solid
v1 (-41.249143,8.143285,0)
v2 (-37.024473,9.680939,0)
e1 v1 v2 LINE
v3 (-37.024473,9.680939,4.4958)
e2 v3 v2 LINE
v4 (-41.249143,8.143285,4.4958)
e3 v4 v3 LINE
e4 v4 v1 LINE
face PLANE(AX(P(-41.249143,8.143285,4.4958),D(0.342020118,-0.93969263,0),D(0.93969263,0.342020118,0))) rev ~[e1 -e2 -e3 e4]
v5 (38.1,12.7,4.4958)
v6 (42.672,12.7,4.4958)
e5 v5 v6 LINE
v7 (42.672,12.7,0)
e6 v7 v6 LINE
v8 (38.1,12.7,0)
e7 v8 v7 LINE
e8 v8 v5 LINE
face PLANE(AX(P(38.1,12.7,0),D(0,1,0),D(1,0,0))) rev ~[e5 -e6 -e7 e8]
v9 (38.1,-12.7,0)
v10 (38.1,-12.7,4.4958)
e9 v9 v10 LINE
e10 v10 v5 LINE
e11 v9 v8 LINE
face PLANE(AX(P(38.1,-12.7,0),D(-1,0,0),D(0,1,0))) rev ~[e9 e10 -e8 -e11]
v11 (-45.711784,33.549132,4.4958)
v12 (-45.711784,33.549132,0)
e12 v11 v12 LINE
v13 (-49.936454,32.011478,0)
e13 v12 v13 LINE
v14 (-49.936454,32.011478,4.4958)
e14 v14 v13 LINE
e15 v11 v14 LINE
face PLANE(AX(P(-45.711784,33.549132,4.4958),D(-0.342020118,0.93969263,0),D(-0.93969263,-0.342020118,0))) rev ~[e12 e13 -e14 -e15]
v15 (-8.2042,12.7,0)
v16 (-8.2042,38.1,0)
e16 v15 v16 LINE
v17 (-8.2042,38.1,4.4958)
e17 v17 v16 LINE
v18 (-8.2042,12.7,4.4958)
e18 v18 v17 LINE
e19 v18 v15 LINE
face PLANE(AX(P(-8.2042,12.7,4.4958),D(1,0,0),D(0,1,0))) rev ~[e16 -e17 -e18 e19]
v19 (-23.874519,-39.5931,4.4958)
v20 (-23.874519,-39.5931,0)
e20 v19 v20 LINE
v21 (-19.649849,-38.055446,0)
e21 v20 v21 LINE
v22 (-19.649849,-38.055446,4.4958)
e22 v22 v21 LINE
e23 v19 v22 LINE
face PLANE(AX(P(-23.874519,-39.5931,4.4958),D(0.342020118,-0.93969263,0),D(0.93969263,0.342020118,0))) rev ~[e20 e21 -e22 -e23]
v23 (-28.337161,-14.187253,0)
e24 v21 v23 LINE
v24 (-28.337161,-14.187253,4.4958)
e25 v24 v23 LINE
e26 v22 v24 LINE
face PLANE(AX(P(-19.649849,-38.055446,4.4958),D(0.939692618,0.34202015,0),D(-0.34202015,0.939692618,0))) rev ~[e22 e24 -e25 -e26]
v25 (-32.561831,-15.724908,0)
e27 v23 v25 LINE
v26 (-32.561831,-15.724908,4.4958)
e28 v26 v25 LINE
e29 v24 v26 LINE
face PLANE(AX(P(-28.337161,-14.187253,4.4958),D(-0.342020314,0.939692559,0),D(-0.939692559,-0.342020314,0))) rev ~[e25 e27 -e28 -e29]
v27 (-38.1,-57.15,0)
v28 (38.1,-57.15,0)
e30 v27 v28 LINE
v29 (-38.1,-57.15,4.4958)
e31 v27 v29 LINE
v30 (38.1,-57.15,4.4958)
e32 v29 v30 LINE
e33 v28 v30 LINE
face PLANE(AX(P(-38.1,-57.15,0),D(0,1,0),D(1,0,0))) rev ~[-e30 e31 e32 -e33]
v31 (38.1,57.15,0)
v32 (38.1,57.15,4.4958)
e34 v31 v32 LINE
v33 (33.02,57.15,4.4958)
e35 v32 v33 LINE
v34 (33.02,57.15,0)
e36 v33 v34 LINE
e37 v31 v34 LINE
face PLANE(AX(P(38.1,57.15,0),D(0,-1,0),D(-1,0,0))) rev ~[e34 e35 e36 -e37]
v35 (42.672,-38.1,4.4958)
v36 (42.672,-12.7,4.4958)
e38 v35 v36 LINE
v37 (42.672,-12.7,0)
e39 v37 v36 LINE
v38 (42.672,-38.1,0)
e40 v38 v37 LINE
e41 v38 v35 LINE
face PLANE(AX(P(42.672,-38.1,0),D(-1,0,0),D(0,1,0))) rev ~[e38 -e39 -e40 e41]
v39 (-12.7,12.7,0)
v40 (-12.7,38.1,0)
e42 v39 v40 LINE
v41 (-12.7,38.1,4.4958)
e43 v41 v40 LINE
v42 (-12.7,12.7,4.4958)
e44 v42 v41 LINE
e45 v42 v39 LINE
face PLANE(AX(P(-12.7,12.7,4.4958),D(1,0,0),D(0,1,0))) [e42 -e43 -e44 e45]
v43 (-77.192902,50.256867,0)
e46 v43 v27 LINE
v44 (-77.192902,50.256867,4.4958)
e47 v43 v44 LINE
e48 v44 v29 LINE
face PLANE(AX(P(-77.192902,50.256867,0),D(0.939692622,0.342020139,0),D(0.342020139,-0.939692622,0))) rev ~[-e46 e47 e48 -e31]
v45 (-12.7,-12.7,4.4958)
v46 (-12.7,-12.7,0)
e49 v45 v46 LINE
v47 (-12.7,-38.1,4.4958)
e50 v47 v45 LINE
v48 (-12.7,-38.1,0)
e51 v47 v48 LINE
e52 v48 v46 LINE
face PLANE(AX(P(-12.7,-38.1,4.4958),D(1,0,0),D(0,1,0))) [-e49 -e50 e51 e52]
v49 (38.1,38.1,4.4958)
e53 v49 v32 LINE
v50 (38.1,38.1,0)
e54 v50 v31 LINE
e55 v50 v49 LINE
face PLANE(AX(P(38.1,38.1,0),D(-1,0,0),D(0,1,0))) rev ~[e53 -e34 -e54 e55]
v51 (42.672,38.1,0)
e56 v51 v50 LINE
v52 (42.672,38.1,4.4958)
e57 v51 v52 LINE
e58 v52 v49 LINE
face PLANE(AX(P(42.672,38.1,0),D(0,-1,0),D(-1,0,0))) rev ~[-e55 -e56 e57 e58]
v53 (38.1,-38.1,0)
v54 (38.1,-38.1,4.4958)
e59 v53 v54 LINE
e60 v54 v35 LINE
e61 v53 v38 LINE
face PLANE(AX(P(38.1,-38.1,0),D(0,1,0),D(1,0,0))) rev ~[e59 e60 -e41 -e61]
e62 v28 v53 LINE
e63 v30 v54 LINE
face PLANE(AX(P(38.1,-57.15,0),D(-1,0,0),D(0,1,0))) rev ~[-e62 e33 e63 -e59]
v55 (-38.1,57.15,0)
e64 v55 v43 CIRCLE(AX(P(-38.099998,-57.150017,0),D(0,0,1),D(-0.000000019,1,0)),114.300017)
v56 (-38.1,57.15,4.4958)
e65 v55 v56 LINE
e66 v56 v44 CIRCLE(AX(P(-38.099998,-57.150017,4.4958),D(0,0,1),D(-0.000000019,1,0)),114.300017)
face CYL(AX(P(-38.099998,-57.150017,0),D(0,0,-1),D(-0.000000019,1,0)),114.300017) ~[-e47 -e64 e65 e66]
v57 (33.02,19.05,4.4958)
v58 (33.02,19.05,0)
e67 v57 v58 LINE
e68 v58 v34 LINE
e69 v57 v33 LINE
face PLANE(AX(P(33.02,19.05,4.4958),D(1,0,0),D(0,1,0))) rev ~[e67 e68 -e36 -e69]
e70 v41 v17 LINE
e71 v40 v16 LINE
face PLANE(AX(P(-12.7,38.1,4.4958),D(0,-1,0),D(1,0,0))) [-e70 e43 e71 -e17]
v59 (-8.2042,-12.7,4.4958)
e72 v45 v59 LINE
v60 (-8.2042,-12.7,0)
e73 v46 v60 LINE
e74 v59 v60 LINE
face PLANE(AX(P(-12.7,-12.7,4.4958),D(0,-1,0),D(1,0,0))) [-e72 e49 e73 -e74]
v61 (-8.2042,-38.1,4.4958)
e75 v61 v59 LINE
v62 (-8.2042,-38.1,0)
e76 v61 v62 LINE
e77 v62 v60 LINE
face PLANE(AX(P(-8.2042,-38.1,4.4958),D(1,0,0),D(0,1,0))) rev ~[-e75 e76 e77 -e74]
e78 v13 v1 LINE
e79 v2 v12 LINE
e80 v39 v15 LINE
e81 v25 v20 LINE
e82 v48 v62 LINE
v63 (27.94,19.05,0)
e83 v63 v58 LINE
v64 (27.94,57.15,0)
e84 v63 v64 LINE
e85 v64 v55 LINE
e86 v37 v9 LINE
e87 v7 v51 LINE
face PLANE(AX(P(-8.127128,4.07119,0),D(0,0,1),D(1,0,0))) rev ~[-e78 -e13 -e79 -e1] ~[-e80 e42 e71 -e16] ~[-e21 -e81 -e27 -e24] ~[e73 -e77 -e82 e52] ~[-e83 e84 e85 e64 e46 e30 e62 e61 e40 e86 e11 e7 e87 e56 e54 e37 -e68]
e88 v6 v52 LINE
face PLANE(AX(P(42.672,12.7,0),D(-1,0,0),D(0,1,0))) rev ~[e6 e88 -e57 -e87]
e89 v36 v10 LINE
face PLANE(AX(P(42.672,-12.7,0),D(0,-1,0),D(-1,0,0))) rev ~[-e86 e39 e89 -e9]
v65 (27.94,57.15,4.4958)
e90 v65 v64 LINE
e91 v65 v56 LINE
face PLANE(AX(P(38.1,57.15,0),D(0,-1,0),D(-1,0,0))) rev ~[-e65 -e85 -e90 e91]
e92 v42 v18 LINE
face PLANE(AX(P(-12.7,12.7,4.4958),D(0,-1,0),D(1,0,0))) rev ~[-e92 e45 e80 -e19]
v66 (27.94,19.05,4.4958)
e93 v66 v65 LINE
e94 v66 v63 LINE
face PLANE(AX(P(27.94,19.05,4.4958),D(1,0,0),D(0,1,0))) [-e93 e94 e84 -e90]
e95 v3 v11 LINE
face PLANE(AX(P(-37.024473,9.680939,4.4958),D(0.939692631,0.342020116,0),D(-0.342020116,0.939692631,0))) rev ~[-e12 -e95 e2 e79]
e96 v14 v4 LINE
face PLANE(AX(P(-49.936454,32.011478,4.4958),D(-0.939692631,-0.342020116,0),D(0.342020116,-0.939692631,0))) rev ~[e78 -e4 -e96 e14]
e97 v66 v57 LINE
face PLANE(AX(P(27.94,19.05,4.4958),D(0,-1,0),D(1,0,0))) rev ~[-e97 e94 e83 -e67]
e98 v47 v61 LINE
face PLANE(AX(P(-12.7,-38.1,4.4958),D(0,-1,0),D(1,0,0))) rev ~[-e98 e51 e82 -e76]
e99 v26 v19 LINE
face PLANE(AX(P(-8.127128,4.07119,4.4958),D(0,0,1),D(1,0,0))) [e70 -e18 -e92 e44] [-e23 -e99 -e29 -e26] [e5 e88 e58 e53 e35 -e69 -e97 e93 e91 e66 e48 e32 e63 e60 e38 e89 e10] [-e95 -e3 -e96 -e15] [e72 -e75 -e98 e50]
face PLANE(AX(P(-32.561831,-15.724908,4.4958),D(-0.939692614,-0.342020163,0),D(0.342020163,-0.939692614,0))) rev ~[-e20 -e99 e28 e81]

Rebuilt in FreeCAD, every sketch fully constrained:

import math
import FreeCAD as App
import Part
import Sketcher
Q = App.Units.Quantity

doc = App.newDocument("Part")
params = doc.addObject("Spreadsheet::Sheet", "Params")
for row, (alias, value) in enumerate([
    ("sketch1_width", "3 in"),
    ("sketch1_height", "1 in"),
    ("sketch1_length", "4.5 in"),
    ("sketch1_width2", "0.18 in"),
    ("sketch1_height2", "0.75 in"),
    ("pad1_length", "0.177 in"),
    ("sketch2_height", "1 in"),
    ("sketch2_length", "1 in"),
    ("sketch2_width", "0.2 in"),
    ("sketch2_height2", "1.5 in"),
    ("sketch2_width2", "0.177 in"),
], start=1):
    params.set(f"A{row}", alias)
    params.set(f"B{row}", "=" + value)
    params.setAlias(f"B{row}", alias)

body = doc.addObject("PartDesign::Body", "Body")

# Sketch on XY plane
sketch1 = body.newObject("Sketcher::SketchObject", "Sketch")
sketch1.AttachmentSupport = (doc.getObject("XY_Plane"), [""])
sketch1.MapMode = "FlatFace"
sketch1.addGeometry([
    Part.LineSegment(App.Vector(38.1, 57.1, 0), App.Vector(-38.1, 57.1, 0)),  # 0
    Part.ArcOfCircle(Part.Circle(App.Vector(-38.1, -57.2, 0), App.Vector(0, 0, 1), 114.3), math.radians(90), math.radians(110)),  # 1
    Part.LineSegment(App.Vector(-77.2, 50.3, 0), App.Vector(-38.1, -57.1, 0)),  # 2
    Part.LineSegment(App.Vector(-38.1, -57.1, 0), App.Vector(38.1, -57.1, 0)),  # 3
    Part.LineSegment(App.Vector(38.1, -57.1, 0), App.Vector(38.1, -38.1, 0)),  # 4
    Part.LineSegment(App.Vector(38.1, -38.1, 0), App.Vector(42.7, -38.1, 0)),  # 5
    Part.LineSegment(App.Vector(42.7, -38.1, 0), App.Vector(42.7, -12.7, 0)),  # 6
    Part.LineSegment(App.Vector(42.7, -12.7, 0), App.Vector(38.1, -12.7, 0)),  # 7
    Part.LineSegment(App.Vector(38.1, -12.7, 0), App.Vector(38.1, 12.7, 0)),  # 8
    Part.LineSegment(App.Vector(38.1, 12.7, 0), App.Vector(42.7, 12.7, 0)),  # 9
    Part.LineSegment(App.Vector(42.7, 12.7, 0), App.Vector(42.7, 38.1, 0)),  # 10
    Part.LineSegment(App.Vector(42.7, 38.1, 0), App.Vector(38.1, 38.1, 0)),  # 11
    Part.LineSegment(App.Vector(38.1, 38.1, 0), App.Vector(38.1, 57.1, 0)),  # 12
], False)
sketch1.addConstraint([
    Sketcher.Constraint("Tangent", 0, 2, 1, 1),
    Sketcher.Constraint("Coincident", 1, 2, 2, 1),
    Sketcher.Constraint("Coincident", 2, 2, 3, 1),
    Sketcher.Constraint("Coincident", 3, 2, 4, 1),
    Sketcher.Constraint("Coincident", 4, 2, 5, 1),
    Sketcher.Constraint("Coincident", 5, 2, 6, 1),
    Sketcher.Constraint("Coincident", 6, 2, 7, 1),
    Sketcher.Constraint("Coincident", 7, 2, 8, 1),
    Sketcher.Constraint("Coincident", 8, 2, 9, 1),
    Sketcher.Constraint("Coincident", 9, 2, 10, 1),
    Sketcher.Constraint("Coincident", 10, 2, 11, 1),
    Sketcher.Constraint("Coincident", 11, 2, 12, 1),
    Sketcher.Constraint("Coincident", 12, 2, 0, 1),
    Sketcher.Constraint("Horizontal", 0),
    Sketcher.Constraint("Horizontal", 3),
    Sketcher.Constraint("Vertical", 4),
    Sketcher.Constraint("Horizontal", 5),
    Sketcher.Constraint("Vertical", 6),
    Sketcher.Constraint("Horizontal", 7),
    Sketcher.Constraint("Vertical", 8),
    Sketcher.Constraint("Horizontal", 9),
    Sketcher.Constraint("Vertical", 10),
    Sketcher.Constraint("Horizontal", 11),
    Sketcher.Constraint("Vertical", 12),
    Sketcher.Constraint("Symmetric", 0, 2, 3, 2, -1, 1),
    Sketcher.Constraint("Symmetric", 6, 2, 9, 2, -1),
    Sketcher.Constraint("Symmetric", 4, 2, 11, 2, -1),
    Sketcher.Constraint("Vertical", 0, 2, 2, 2),
    Sketcher.Constraint("Vertical", 4, 2, 7, 2),
    Sketcher.Constraint("Equal", 6, 8),
    Sketcher.Constraint("DistanceX", 0, 2, 0, 1, Q("3 in")),
    Sketcher.Constraint("DistanceY", 6, 1, 6, 2, Q("1 in")),
    Sketcher.Constraint("Angle", 2, Q("-70 deg")),
    Sketcher.Constraint("Distance", 2, Q("4.5 in")),
    Sketcher.Constraint("DistanceX", 5, 1, 5, 2, Q("0.18 in")),
    Sketcher.Constraint("DistanceY", 4, 1, 4, 2, Q("0.75 in")),
])
sketch1.setExpression("Constraints[30]", "Params.sketch1_width")
sketch1.setExpression("Constraints[31]", "Params.sketch1_height")
sketch1.setExpression("Constraints[33]", "Params.sketch1_length")
sketch1.setExpression("Constraints[34]", "Params.sketch1_width2")
sketch1.setExpression("Constraints[35]", "Params.sketch1_height2")
pad1 = body.newObject("PartDesign::Pad", "Pad")
pad1.Profile = sketch1
pad1.setExpression("Length", "Params.pad1_length")

# Sketch on XY plane
sketch2 = body.newObject("Sketcher::SketchObject", "Sketch001")
sketch2.AttachmentSupport = (doc.getObject("XY_Plane"), [""])
sketch2.MapMode = "FlatFace"
sketch2.AttachmentOffset = App.Placement(App.Vector(0, 0, 0.177 * 25.4), App.Rotation())
sketch2.addGeometry([
    Part.LineSegment(App.Vector(-12.7, 38.1, 0), App.Vector(-12.7, 12.7, 0)),  # 0
    Part.LineSegment(App.Vector(-12.7, 12.7, 0), App.Vector(-8.2, 12.7, 0)),  # 1
    Part.LineSegment(App.Vector(-8.2, 12.7, 0), App.Vector(-8.2, 38.1, 0)),  # 2
    Part.LineSegment(App.Vector(-8.2, 38.1, 0), App.Vector(-12.7, 38.1, 0)),  # 3
    Part.LineSegment(App.Vector(-12.7, -12.7, 0), App.Vector(-12.7, -38.1, 0)),  # 4
    Part.LineSegment(App.Vector(-12.7, -38.1, 0), App.Vector(-8.2, -38.1, 0)),  # 5
    Part.LineSegment(App.Vector(-8.2, -38.1, 0), App.Vector(-8.2, -12.7, 0)),  # 6
    Part.LineSegment(App.Vector(-8.2, -12.7, 0), App.Vector(-12.7, -12.7, 0)),  # 7
    Part.LineSegment(App.Vector(-37, 9.7, 0), App.Vector(-45.7, 33.5, 0)),  # 8
    Part.LineSegment(App.Vector(-45.7, 33.5, 0), App.Vector(-49.9, 32, 0)),  # 9
    Part.LineSegment(App.Vector(-49.9, 32, 0), App.Vector(-41.2, 8.1, 0)),  # 10
    Part.LineSegment(App.Vector(-41.2, 8.1, 0), App.Vector(-37, 9.7, 0)),  # 11
    Part.LineSegment(App.Vector(-23.9, -39.6, 0), App.Vector(-19.6, -38.1, 0)),  # 12
    Part.LineSegment(App.Vector(-19.6, -38.1, 0), App.Vector(-28.3, -14.2, 0)),  # 13
    Part.LineSegment(App.Vector(-28.3, -14.2, 0), App.Vector(-32.6, -15.7, 0)),  # 14
    Part.LineSegment(App.Vector(-32.6, -15.7, 0), App.Vector(-23.9, -39.6, 0)),  # 15
    Part.LineSegment(App.Vector(27.9, 57.1, 0), App.Vector(27.9, 19.1, 0)),  # 16
    Part.LineSegment(App.Vector(27.9, 19.1, 0), App.Vector(33, 19.1, 0)),  # 17
    Part.LineSegment(App.Vector(33, 19.1, 0), App.Vector(33, 57.1, 0)),  # 18
    Part.LineSegment(App.Vector(33, 57.1, 0), App.Vector(27.9, 57.1, 0)),  # 19
], False)
sketch2.addConstraint([
    Sketcher.Constraint("Coincident", 0, 2, 1, 1),
    Sketcher.Constraint("Coincident", 1, 2, 2, 1),
    Sketcher.Constraint("Coincident", 2, 2, 3, 1),
    Sketcher.Constraint("Coincident", 3, 2, 0, 1),
    Sketcher.Constraint("Coincident", 4, 2, 5, 1),
    Sketcher.Constraint("Coincident", 5, 2, 6, 1),
    Sketcher.Constraint("Coincident", 6, 2, 7, 1),
    Sketcher.Constraint("Coincident", 7, 2, 4, 1),
    Sketcher.Constraint("Coincident", 8, 2, 9, 1),
    Sketcher.Constraint("Coincident", 9, 2, 10, 1),
    Sketcher.Constraint("Coincident", 10, 2, 11, 1),
    Sketcher.Constraint("Coincident", 11, 2, 8, 1),
    Sketcher.Constraint("Coincident", 12, 2, 13, 1),
    Sketcher.Constraint("Coincident", 13, 2, 14, 1),
    Sketcher.Constraint("Coincident", 14, 2, 15, 1),
    Sketcher.Constraint("Coincident", 15, 2, 12, 1),
    Sketcher.Constraint("Coincident", 16, 2, 17, 1),
    Sketcher.Constraint("Coincident", 17, 2, 18, 1),
    Sketcher.Constraint("Coincident", 18, 2, 19, 1),
    Sketcher.Constraint("Coincident", 19, 2, 16, 1),
    Sketcher.Constraint("Vertical", 0),
    Sketcher.Constraint("Horizontal", 1),
    Sketcher.Constraint("Vertical", 2),
    Sketcher.Constraint("Horizontal", 3),
    Sketcher.Constraint("Vertical", 4),
    Sketcher.Constraint("Horizontal", 5),
    Sketcher.Constraint("Vertical", 6),
    Sketcher.Constraint("Horizontal", 7),
    Sketcher.Constraint("Vertical", 16),
    Sketcher.Constraint("Horizontal", 17),
    Sketcher.Constraint("Vertical", 18),
    Sketcher.Constraint("Horizontal", 19),
    Sketcher.Constraint("Symmetric", 3, 2, 4, 2, -1),
    Sketcher.Constraint("Symmetric", 1, 2, 6, 2, -1),
    Sketcher.Constraint("Perpendicular", 8, 9),
    Sketcher.Constraint("Perpendicular", 9, 10),
    Sketcher.Constraint("Perpendicular", 10, 11),
    Sketcher.Constraint("Parallel", 11, 12),
    Sketcher.Constraint("Perpendicular", 12, 13),
    Sketcher.Constraint("Perpendicular", 13, 14),
    Sketcher.Constraint("Perpendicular", 14, 15),
    Sketcher.Constraint("Equal", 11, 12),
    Sketcher.Constraint("Equal", 10, 13),
    Sketcher.Constraint("DistanceY", 0, 2, 0, 1, Q("1 in")),
    Sketcher.Constraint("Distance", 8, Q("1 in")),
    Sketcher.Constraint("DistanceX", 17, 1, 17, 2, Q("0.2 in")),
    Sketcher.Constraint("DistanceY", 16, 2, 16, 1, Q("1.5 in")),
    Sketcher.Constraint("Angle", 8, Q("109.999998 deg")),
    Sketcher.Constraint("DistanceY", 4, 2, 0, 2, Q("2 in")),
    Sketcher.Constraint("DistanceX", 0, 2, -1, 1, Q("0.5 in")),
    Sketcher.Constraint("DistanceX", -1, 1, 16, 2, Q("1.1 in")),
    Sketcher.Constraint("DistanceX", 1, 1, 1, 2, Q("0.177 in")),
    Sketcher.Constraint("DistanceY", -1, 1, 16, 2, Q("0.75 in")),
    Sketcher.Constraint("Distance", 9, Q("0.177 in")),
    Sketcher.Constraint("DistanceY", 15, 2, -1, 1, Q("39.5931 mm")),
    Sketcher.Constraint("DistanceY", -1, 1, 11, 2, Q("9.680939 mm")),
    Sketcher.Constraint("DistanceX", 12, 2, -1, 1, Q("19.649849 mm")),
    Sketcher.Constraint("DistanceX", 10, 2, 13, 2, Q("12.911982 mm")),
])
sketch2.setExpression("Constraints[43]", "Params.sketch2_height")
sketch2.setExpression("Constraints[44]", "Params.sketch2_length")
sketch2.setExpression("Constraints[45]", "Params.sketch2_width")
sketch2.setExpression("Constraints[46]", "Params.sketch2_height2")
sketch2.setExpression("Constraints[51]", "Params.sketch2_width2")
pocket1 = body.newObject("PartDesign::Pocket", "Pocket")
pocket1.Profile = sketch2
pocket1.Type = "ThroughAll"

doc.recompute()
